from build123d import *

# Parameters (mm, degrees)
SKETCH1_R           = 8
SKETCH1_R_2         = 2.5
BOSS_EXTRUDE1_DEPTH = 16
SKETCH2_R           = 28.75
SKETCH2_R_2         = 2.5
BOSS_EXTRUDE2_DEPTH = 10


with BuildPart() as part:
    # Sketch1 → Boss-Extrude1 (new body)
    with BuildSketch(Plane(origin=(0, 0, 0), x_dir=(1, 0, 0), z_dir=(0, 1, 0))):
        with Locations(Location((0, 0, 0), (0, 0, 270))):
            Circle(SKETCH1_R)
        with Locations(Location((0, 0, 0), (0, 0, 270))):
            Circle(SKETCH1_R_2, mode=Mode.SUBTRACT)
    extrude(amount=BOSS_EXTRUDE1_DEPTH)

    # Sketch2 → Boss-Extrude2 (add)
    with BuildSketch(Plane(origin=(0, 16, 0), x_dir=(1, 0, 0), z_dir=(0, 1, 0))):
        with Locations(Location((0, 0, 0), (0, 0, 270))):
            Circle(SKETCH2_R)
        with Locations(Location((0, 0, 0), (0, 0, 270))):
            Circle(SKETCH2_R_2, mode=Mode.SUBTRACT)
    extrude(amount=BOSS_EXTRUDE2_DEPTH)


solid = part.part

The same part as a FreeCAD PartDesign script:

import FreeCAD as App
import Part
import Sketcher
from FreeCAD import Vector

doc = App.newDocument("Part")
params = doc.addObject("Spreadsheet::Sheet", "Params")
for row, (alias, value) in enumerate([
    ("sketch1_diameter", "16 mm"),
    ("sketch1_diameter2", "5 mm"),
    ("pad1_length", "16 mm"),
    ("sketch2_diameter", "5 mm"),
    ("sketch2_diameter2", "57.5 mm"),
    ("pad2_length", "10 mm"),
], start=1):
    params.set(f"A{row}", alias)
    params.set(f"B{row}", "=" + value)
    params.setAlias(f"B{row}", alias)

body = doc.addObject("PartDesign::Body", "Body")

# Sketch on XZ plane
sketch1 = body.newObject("Sketcher::SketchObject", "Sketch")
sketch1.AttachmentSupport = (doc.getObject("XZ_Plane"), [""])
sketch1.MapMode = "FlatFace"
sketch1.addGeometry(Part.Circle(Vector(0, 0, 0), Vector(0, 0, 1), 8), False)
sketch1.addGeometry(Part.Circle(Vector(0, 0, 0), Vector(0, 0, 1), 2.5), False)
sketch1.addConstraint(Sketcher.Constraint("Coincident", 0, 3, -1, 1))
sketch1.addConstraint(Sketcher.Constraint("Coincident", 1, 3, -1, 1))
sketch1.addConstraint(Sketcher.Constraint("Diameter", 0, 16.0))
sketch1.addConstraint(Sketcher.Constraint("Diameter", 1, 5.0))
sketch1.setExpression("Constraints[2]", "Params.sketch1_diameter")
sketch1.setExpression("Constraints[3]", "Params.sketch1_diameter2")
pad1 = body.newObject("PartDesign::Pad", "Pad")
pad1.Profile = sketch1
pad1.setExpression("Length", "Params.pad1_length")
pad1.Reversed = True

# Sketch on XZ plane
sketch2 = body.newObject("Sketcher::SketchObject", "Sketch001")
sketch2.AttachmentSupport = (doc.getObject("XZ_Plane"), [""])
sketch2.MapMode = "FlatFace"
sketch2.AttachmentOffset = App.Placement(Vector(0, 0, -16), App.Rotation())
sketch2.addGeometry(Part.Circle(Vector(0, 0, 0), Vector(0, 0, 1), 28.8), False)
sketch2.addGeometry(Part.Circle(Vector(0, 0, 0), Vector(0, 0, 1), 2.5), False)
sketch2.addConstraint(Sketcher.Constraint("Coincident", 0, 3, -1, 1))
sketch2.addConstraint(Sketcher.Constraint("Coincident", 1, 3, -1, 1))
sketch2.addConstraint(Sketcher.Constraint("Diameter", 1, 5.0))
sketch2.addConstraint(Sketcher.Constraint("Diameter", 0, 57.5))
sketch2.setExpression("Constraints[2]", "Params.sketch2_diameter")
sketch2.setExpression("Constraints[3]", "Params.sketch2_diameter2")
pad2 = body.newObject("PartDesign::Pad", "Pad001")
pad2.Profile = sketch2
pad2.setExpression("Length", "Params.pad2_length")
pad2.Reversed = True

doc.recompute()
